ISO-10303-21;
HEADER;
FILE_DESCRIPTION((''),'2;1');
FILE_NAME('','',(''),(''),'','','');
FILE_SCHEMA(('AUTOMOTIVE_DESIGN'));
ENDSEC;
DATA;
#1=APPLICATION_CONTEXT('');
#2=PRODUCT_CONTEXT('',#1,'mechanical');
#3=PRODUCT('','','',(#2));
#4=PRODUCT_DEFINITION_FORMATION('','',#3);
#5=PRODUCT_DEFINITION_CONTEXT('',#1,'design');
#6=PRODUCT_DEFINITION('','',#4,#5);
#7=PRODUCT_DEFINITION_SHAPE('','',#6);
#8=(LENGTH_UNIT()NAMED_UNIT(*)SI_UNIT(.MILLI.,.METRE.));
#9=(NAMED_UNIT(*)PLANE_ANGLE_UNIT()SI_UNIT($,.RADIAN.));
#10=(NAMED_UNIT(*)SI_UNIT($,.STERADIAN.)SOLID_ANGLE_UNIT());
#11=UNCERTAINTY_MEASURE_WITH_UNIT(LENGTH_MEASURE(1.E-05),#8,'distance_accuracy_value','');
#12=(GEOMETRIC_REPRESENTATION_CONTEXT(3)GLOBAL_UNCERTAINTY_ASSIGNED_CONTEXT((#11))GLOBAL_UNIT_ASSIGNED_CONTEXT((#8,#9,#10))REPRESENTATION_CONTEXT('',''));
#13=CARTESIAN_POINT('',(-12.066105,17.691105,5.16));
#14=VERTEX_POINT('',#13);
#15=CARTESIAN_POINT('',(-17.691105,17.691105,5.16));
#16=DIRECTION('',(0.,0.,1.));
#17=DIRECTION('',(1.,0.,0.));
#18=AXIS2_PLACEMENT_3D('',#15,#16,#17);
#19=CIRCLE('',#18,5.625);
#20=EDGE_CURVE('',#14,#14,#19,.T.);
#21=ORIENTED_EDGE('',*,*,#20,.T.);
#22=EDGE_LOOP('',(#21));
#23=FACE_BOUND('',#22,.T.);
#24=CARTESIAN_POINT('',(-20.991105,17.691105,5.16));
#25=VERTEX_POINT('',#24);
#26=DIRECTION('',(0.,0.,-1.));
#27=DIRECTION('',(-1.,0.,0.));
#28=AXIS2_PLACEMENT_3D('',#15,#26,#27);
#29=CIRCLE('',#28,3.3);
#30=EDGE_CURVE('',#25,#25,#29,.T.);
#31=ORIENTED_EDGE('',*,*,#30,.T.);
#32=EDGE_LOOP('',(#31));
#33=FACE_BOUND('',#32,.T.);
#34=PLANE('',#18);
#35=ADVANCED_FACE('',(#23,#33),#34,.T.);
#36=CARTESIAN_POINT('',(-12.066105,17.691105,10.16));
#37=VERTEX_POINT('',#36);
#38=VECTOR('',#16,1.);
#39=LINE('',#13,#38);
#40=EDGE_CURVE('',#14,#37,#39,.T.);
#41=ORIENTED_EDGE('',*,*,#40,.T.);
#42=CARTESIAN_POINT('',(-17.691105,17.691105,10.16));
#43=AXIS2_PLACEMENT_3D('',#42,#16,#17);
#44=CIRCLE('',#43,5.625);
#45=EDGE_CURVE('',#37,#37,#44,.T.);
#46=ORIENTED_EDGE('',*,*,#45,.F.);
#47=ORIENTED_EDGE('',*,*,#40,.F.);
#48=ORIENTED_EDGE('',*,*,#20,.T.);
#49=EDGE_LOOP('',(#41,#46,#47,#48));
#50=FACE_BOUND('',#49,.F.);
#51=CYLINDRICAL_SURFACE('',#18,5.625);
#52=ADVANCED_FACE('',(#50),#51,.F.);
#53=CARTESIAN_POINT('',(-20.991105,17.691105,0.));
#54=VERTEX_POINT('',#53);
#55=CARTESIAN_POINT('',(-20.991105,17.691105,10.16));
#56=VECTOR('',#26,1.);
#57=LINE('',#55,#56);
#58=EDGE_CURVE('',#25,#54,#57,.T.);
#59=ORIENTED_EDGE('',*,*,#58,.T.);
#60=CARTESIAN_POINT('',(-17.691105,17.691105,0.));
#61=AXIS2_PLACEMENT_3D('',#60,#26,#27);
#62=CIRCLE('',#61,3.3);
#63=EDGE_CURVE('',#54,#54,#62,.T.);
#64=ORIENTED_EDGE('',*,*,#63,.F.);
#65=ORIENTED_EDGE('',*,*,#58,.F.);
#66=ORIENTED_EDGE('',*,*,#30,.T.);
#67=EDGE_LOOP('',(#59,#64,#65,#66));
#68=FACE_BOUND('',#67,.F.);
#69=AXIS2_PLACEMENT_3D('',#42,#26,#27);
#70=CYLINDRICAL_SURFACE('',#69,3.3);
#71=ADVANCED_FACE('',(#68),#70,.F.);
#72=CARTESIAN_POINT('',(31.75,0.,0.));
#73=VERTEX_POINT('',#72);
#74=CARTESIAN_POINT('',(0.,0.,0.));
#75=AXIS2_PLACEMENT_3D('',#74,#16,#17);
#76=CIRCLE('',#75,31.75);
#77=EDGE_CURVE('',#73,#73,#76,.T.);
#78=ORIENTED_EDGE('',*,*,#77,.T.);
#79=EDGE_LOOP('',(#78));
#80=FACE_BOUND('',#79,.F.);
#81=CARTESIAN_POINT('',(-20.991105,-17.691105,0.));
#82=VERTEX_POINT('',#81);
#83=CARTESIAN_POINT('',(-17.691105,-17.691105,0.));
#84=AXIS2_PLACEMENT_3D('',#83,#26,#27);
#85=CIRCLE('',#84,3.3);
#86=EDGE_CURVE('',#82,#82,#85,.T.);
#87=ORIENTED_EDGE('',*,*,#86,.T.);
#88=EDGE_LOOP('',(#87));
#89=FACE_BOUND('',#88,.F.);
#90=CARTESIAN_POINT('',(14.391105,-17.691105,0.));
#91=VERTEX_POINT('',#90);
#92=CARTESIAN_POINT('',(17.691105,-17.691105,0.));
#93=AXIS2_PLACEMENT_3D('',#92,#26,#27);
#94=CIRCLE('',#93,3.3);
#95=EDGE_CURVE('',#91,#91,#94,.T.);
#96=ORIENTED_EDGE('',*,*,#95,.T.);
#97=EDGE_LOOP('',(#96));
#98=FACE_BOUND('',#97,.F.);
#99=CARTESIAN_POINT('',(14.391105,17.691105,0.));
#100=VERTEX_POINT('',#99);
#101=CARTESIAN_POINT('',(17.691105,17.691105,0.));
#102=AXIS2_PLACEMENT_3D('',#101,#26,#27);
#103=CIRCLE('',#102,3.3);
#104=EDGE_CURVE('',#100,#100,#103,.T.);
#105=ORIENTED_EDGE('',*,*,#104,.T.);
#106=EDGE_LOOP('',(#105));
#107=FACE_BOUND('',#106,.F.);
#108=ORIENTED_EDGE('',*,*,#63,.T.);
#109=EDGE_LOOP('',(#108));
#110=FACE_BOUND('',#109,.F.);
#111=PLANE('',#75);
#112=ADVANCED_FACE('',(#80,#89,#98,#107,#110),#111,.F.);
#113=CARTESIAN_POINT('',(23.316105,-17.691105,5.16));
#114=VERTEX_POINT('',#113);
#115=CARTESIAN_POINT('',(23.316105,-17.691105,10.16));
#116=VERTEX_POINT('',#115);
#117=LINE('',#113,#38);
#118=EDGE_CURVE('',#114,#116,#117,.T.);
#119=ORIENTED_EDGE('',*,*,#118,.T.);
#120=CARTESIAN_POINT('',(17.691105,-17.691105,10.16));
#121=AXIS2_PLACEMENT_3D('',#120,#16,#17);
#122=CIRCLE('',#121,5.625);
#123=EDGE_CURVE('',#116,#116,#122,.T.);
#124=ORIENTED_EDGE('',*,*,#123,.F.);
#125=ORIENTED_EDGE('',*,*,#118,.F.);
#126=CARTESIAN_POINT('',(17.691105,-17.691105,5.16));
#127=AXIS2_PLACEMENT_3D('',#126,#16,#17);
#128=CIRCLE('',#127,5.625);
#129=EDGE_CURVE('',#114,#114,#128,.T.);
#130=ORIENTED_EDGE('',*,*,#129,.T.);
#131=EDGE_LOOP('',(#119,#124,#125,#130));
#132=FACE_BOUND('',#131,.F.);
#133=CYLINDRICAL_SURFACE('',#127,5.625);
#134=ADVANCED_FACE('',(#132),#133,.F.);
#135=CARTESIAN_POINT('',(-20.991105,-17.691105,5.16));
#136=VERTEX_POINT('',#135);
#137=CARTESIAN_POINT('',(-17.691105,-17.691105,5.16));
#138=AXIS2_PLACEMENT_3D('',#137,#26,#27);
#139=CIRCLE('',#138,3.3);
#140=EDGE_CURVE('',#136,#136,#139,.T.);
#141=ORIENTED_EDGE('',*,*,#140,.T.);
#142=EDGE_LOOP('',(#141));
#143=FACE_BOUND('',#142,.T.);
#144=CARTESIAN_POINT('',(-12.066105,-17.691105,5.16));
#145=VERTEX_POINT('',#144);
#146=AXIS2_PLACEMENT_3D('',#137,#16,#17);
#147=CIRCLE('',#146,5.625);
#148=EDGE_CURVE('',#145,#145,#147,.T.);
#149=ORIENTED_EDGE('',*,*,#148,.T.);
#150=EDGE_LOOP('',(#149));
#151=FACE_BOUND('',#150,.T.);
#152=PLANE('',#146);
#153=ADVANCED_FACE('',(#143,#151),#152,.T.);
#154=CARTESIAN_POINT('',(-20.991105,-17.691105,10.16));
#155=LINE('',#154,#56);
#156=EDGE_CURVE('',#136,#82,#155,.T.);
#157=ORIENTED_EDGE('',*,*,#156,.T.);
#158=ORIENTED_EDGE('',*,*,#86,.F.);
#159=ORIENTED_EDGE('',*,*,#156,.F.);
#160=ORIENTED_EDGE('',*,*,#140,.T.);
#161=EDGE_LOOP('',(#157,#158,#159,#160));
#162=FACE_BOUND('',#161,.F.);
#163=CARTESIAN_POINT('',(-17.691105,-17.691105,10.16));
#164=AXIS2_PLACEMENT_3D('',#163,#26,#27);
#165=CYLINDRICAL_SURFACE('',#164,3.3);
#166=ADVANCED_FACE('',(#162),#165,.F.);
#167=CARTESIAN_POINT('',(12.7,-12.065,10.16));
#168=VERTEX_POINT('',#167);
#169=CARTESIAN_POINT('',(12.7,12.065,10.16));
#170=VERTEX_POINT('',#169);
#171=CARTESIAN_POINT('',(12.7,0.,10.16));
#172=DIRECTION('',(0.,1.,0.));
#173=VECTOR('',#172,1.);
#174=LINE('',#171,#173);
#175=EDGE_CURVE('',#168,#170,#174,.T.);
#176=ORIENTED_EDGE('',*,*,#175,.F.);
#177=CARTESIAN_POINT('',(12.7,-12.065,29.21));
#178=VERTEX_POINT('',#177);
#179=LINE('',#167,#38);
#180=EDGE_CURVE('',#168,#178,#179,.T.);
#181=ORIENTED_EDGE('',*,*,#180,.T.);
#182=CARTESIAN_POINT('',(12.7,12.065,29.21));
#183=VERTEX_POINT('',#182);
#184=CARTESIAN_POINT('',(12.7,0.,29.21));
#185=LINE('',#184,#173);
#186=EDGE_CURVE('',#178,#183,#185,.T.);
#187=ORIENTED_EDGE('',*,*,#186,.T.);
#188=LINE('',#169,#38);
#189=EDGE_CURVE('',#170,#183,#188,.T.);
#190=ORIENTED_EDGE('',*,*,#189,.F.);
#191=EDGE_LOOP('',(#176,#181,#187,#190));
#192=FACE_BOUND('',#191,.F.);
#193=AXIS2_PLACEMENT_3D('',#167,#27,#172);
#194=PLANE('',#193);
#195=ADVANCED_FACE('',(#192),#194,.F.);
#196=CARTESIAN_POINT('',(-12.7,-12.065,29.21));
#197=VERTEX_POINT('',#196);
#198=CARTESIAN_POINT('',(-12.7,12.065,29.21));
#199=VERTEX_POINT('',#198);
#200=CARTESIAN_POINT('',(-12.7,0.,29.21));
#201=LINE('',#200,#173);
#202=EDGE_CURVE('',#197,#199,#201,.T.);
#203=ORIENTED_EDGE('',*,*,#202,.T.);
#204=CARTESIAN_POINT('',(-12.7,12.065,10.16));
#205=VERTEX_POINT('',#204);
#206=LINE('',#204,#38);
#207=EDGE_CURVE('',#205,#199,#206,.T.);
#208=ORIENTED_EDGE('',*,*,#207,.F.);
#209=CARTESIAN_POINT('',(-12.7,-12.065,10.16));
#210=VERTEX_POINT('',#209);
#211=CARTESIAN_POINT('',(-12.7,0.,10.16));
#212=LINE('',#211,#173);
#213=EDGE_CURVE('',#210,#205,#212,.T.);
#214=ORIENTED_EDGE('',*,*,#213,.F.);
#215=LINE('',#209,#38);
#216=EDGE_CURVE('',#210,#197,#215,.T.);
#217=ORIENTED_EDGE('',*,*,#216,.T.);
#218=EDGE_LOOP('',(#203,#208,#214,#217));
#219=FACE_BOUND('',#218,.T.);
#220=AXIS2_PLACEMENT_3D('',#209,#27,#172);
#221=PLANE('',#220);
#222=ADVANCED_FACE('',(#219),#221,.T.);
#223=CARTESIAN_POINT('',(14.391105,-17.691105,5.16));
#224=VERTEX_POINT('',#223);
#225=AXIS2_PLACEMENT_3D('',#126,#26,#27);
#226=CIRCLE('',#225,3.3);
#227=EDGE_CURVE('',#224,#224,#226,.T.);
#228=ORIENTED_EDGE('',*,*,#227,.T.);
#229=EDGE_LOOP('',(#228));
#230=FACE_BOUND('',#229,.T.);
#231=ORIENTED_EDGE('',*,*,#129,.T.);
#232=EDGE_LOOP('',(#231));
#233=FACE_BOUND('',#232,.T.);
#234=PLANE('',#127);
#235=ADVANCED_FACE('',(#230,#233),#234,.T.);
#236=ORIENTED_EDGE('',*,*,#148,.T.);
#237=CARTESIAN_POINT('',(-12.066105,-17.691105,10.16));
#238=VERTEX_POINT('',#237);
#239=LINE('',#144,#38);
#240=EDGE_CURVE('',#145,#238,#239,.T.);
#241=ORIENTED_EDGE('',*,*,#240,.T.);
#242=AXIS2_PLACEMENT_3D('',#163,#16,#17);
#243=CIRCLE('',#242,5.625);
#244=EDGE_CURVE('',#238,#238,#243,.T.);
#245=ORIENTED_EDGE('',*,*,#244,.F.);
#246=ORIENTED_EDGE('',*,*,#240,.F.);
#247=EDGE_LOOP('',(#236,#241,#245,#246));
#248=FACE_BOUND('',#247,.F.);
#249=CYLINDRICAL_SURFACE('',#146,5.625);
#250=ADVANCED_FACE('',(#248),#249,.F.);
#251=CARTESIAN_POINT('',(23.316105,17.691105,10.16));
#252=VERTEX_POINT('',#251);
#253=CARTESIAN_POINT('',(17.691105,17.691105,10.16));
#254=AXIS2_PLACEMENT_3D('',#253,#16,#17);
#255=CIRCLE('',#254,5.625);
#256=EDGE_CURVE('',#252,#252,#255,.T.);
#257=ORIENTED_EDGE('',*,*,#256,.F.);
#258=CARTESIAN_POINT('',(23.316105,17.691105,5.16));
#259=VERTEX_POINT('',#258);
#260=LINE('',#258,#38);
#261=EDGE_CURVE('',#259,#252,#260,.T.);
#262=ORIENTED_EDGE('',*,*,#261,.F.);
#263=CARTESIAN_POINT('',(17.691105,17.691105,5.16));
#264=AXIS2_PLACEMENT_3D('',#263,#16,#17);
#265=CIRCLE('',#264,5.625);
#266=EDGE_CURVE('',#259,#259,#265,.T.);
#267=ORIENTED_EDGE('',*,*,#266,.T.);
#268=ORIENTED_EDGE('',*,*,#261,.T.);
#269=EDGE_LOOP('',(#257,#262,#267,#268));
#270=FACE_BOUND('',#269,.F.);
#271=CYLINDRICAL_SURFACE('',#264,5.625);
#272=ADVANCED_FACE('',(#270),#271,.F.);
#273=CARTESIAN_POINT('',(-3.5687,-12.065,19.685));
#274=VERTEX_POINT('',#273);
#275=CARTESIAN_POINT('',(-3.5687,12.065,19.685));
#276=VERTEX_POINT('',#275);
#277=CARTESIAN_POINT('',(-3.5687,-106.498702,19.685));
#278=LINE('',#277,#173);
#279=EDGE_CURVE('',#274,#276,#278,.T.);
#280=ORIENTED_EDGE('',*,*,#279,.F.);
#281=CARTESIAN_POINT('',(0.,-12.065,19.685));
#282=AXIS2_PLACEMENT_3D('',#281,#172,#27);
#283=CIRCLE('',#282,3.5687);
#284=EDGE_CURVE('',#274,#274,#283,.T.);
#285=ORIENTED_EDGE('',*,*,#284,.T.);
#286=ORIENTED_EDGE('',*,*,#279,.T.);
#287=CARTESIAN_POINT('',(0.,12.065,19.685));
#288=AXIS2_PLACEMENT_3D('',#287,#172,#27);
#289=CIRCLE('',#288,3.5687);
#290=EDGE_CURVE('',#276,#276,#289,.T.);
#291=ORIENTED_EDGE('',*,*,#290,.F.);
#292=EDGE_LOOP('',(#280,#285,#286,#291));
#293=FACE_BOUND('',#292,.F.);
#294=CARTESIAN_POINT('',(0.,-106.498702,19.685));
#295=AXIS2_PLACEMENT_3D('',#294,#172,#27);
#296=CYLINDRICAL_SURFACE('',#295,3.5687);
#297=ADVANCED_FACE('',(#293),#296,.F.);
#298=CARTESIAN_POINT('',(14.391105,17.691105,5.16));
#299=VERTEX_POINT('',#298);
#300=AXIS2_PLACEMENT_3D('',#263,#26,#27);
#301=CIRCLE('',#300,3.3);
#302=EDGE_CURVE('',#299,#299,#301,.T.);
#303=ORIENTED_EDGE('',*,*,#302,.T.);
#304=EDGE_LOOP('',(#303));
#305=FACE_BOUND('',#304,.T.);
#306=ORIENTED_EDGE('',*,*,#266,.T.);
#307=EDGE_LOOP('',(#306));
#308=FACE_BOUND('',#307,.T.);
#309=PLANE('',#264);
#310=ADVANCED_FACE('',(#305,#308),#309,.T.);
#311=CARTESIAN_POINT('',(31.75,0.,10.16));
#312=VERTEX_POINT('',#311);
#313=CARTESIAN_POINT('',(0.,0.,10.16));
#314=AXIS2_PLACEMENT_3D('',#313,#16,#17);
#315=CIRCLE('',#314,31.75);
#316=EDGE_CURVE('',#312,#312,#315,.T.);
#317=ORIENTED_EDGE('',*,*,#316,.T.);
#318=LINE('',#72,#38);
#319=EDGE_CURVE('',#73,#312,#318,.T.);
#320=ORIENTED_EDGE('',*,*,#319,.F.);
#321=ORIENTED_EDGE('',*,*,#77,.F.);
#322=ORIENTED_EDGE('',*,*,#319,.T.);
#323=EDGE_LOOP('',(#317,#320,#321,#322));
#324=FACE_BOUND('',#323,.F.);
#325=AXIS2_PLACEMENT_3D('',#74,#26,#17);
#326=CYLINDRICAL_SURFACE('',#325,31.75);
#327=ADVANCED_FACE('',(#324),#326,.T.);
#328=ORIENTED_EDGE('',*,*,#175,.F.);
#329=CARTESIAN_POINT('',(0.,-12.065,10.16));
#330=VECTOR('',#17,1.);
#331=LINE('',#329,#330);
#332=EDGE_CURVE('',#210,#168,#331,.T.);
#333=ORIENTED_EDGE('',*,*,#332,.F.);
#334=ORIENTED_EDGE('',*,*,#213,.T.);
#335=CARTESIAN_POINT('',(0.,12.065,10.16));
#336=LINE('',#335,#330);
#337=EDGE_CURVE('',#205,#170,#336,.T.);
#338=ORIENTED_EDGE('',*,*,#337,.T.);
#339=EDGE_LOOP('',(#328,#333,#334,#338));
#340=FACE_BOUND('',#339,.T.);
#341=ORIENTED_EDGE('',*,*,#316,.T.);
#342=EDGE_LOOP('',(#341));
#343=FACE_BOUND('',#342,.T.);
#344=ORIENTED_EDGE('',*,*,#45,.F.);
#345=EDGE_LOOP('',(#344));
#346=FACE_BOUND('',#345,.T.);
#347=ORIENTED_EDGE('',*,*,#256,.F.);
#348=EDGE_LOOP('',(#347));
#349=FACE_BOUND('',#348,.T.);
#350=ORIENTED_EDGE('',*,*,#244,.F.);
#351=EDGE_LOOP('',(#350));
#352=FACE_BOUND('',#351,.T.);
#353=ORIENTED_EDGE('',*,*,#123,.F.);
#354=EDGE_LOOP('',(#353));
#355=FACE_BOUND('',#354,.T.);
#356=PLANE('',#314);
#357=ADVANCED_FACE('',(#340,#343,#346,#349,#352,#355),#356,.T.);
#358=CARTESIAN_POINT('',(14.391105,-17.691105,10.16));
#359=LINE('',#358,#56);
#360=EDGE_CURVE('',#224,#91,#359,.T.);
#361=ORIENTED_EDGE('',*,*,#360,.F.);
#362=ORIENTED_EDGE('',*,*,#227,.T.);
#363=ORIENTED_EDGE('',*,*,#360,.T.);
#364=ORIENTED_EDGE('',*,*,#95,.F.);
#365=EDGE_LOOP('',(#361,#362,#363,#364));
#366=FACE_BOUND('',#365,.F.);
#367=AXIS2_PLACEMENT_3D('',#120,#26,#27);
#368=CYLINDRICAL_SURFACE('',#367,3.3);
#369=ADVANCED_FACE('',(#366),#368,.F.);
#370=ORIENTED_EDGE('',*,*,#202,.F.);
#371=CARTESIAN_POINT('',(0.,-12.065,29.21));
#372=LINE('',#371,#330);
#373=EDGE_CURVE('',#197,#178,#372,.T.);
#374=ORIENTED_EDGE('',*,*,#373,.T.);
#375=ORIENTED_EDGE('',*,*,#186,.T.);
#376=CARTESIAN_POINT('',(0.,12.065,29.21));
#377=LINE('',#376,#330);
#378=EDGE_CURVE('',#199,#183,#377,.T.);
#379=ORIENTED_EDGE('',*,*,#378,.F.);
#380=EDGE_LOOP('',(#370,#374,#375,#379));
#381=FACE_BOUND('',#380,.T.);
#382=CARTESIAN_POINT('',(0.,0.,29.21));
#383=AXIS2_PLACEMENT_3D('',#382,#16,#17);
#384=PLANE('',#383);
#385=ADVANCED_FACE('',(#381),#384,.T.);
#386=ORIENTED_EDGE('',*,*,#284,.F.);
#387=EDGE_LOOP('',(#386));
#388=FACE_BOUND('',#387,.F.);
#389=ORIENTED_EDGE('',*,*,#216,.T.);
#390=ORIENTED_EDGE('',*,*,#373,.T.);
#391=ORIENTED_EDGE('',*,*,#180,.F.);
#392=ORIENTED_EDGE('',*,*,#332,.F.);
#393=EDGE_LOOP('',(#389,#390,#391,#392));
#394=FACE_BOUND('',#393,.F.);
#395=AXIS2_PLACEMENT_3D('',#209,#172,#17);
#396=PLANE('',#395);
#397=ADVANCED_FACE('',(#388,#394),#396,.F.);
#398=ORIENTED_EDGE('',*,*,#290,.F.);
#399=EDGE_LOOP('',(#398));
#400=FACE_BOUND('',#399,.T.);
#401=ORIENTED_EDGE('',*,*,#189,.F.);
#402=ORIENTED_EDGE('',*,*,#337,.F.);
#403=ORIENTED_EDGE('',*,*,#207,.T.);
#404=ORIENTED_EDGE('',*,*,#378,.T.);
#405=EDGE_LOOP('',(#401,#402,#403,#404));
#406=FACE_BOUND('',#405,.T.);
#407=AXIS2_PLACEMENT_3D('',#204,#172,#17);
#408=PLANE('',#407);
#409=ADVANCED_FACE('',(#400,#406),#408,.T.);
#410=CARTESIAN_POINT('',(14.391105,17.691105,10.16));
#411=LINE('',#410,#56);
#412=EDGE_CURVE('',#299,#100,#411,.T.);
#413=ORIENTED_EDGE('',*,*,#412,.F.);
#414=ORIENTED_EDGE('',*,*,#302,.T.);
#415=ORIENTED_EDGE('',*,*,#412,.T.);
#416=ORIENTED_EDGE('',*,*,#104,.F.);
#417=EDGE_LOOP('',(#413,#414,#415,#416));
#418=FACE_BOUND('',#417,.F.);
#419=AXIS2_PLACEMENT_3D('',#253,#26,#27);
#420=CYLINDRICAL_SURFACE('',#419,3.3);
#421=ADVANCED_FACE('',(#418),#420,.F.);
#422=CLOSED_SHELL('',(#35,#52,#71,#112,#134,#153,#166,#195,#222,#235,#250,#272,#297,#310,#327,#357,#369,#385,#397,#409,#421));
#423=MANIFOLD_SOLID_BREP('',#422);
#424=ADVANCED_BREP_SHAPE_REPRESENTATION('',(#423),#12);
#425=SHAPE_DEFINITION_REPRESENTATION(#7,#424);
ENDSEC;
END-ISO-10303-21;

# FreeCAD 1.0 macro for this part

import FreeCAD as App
import Part
import Sketcher
from FreeCAD import Vector
Q = App.Units.Quantity


def add_polygon(sketch, points):
    """Adds a closed chain of lines whose ends are joined by coincident constraints."""
    first, n = sketch.GeometryCount, len(points)
    for a, b in zip(points, points[1:] + points[:1]):
        sketch.addGeometry(Part.LineSegment(App.Vector(*a, 0), App.Vector(*b, 0)), False)
    for i in range(n):
        sketch.addConstraint(Sketcher.Constraint("Coincident", first + i, 2, first + (i + 1) % n, 1))

doc = App.newDocument("Part")
params = doc.addObject("Spreadsheet::Sheet", "Params")
for row, (alias, value) in enumerate([
    ("sketch1_diameter", "2.5 in"),
    ("pad1_length", "0.4 in"),
    ("sketch2_width", "1 in"),
    ("sketch2_height", "0.95 in"),
    ("pad2_length", "0.75 in"),
    ("hole_diameter", "6.6 mm"),
    ("hole_cbore_diameter", "11.25 mm"),
    ("hole_cbore_depth", "5 mm"),
    ("sketch4_diameter", "0.281 in"),
    ("hole2_diameter", "0.281 in"),
], start=1):
    params.set(f"A{row}", alias)
    params.set(f"B{row}", "=" + value)
    params.setAlias(f"B{row}", alias)

body = doc.addObject("PartDesign::Body", "Body")

# Sketch on XY plane
sketch1 = body.newObject("Sketcher::SketchObject", "Sketch")
sketch1.AttachmentSupport = (doc.getObject("XY_Plane"), [""])
sketch1.MapMode = "FlatFace"
sketch1.addGeometry(Part.Circle(Vector(0, 0, 0), Vector(0, 0, 1), 31.75), False)
sketch1.addConstraint([
    Sketcher.Constraint("Coincident", 0, 3, -1, 1),
    Sketcher.Constraint("Diameter", 0, Q("2.5 in")),
])
sketch1.setExpression("Constraints[1]", "Params.sketch1_diameter")
pad1 = body.newObject("PartDesign::Pad", "Pad")
pad1.Profile = sketch1
pad1.setExpression("Length", "Params.pad1_length")

# Sketch on XY plane
sketch2 = body.newObject("Sketcher::SketchObject", "Sketch001")
sketch2.AttachmentSupport = (doc.getObject("XY_Plane"), [""])
sketch2.MapMode = "FlatFace"
sketch2.AttachmentOffset = App.Placement(Vector(0, 0, 0.4 * 25.4), App.Rotation())
add_polygon(sketch2, [(-12.7, 12.065), (-12.7, -12.065), (12.7, -12.065), (12.7, 12.065)])  # lines 0-3
sketch2.addConstraint([
    Sketcher.Constraint("Vertical", 0),
    Sketcher.Constraint("Horizontal", 1),
    Sketcher.Constraint("Vertical", 2),
    Sketcher.Constraint("Horizontal", 3),
    Sketcher.Constraint("Symmetric", 0, 2, 2, 2, -1, 1),
    Sketcher.Constraint("DistanceX", 1, 1, 1, 2, Q("1 in")),
    Sketcher.Constraint("DistanceY", 0, 2, 0, 1, Q("0.95 in")),
])
sketch2.setExpression("Constraints[9]", "Params.sketch2_width")
sketch2.setExpression("Constraints[10]", "Params.sketch2_height")
pad2 = body.newObject("PartDesign::Pad", "Pad001")
pad2.Profile = sketch2
pad2.setExpression("Length", "Params.pad2_length")

# Sketch on XY plane
sketch3 = body.newObject("Sketcher::SketchObject", "Sketch002")
sketch3.AttachmentSupport = (doc.getObject("XY_Plane"), [""])
sketch3.MapMode = "FlatFace"
sketch3.AttachmentOffset = App.Placement(Vector(0, 0, 0.4 * 25.4), App.Rotation())
sketch3.addGeometry([
    Part.Circle(Vector(-17.691105, 17.691105, 0), Vector(0, 0, 1), 3.3),
    Part.Circle(Vector(17.691105, 17.691105, 0), Vector(0, 0, 1), 3.3),
    Part.Circle(Vector(-17.691105, -17.691105, 0), Vector(0, 0, 1), 3.3),
    Part.Circle(Vector(17.691105, -17.691105, 0), Vector(0, 0, 1), 3.3),
], False)
sketch3.addConstraint([
    Sketcher.Constraint("Equal", 0, 1),
    Sketcher.Constraint("Equal", 1, 2),
    Sketcher.Constraint("Equal", 2, 3),
    Sketcher.Constraint("Symmetric", 1, 3, 2, 3, -1, 1),
    Sketcher.Constraint("Symmetric", 0, 3, 3, 3, -1, 1),
    Sketcher.Constraint("Symmetric", 0, 3, 1, 3, -2),
    Sketcher.Constraint("Diameter", 0, 6.6),
    Sketcher.Constraint("DistanceX", 0, 3, -1, 1, Q("0.6965002 in")),
    Sketcher.Constraint("DistanceY", -1, 1, 0, 3, Q("0.6965002 in")),
])
doc.recompute()
hole = body.newObject("PartDesign::Hole", "Hole")
hole.Profile = sketch3
hole.ThreadType = "None"
hole.setExpression("Diameter", "Params.hole_diameter")
hole.DepthType = "ThroughAll"
hole.HoleCutType = "Counterbore"
hole.setExpression("HoleCutDiameter", "Params.hole_cbore_diameter")
hole.setExpression("HoleCutDepth", "Params.hole_cbore_depth")

# Sketch on XZ plane
sketch4 = body.newObject("Sketcher::SketchObject", "Sketch003")
sketch4.AttachmentSupport = (doc.getObject("XZ_Plane"), [""])
sketch4.MapMode = "FlatFace"
sketch4.AttachmentOffset = App.Placement(Vector(0, 0, 0.475 * 25.4), App.Rotation())
sketch4.addGeometry(Part.Circle(Vector(0, 19.685, 0), Vector(0, 0, 1), 3.5687), False)
sketch4.addConstraint([
    Sketcher.Constraint("PointOnObject", 0, 3, -2),
    Sketcher.Constraint("Diameter", 0, Q("0.281 in")),
    Sketcher.Constraint("DistanceY", -1, 1, 0, 3, Q("0.775 in")),
])
sketch4.setExpression("Constraints[1]", "Params.sketch4_diameter")
doc.recompute()
hole2 = body.newObject("PartDesign::Hole", "Hole001")
hole2.Profile = sketch4
hole2.ThreadType = "None"
hole2.setExpression("Diameter", "Params.hole2_diameter")
hole2.DepthType = "ThroughAll"

doc.recompute()
